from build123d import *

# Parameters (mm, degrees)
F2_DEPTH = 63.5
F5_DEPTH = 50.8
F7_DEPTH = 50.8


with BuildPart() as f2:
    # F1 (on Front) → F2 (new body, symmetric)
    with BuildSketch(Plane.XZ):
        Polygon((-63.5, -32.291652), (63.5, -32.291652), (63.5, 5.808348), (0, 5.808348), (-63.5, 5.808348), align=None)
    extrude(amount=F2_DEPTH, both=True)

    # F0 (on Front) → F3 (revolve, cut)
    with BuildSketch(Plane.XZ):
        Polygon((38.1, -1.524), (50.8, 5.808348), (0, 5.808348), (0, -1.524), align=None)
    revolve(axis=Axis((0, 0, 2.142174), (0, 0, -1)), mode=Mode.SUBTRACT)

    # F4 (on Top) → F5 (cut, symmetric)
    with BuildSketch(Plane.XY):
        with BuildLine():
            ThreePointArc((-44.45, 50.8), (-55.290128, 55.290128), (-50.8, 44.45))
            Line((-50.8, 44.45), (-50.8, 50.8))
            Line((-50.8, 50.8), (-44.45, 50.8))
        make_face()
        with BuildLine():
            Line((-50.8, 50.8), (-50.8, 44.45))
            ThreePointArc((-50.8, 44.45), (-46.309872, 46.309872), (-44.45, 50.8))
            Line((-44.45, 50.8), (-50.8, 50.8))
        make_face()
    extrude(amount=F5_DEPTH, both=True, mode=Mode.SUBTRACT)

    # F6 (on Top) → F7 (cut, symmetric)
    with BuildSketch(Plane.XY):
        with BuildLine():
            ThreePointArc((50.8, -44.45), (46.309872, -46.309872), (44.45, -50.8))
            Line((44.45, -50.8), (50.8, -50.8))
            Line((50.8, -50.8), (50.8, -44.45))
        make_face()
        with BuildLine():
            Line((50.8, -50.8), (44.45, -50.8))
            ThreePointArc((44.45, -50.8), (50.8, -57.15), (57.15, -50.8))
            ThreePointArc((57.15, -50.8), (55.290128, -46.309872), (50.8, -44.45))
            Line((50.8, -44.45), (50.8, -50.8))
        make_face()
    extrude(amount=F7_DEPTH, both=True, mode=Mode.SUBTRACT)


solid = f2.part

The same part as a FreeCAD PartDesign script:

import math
import FreeCAD as App
import Part
import Sketcher
Q = App.Units.Quantity

doc = App.newDocument("Part")
body = doc.addObject("PartDesign::Body", "Body")

# Sketch on XZ plane
sketch1 = doc.addObject("Sketcher::SketchObject", "Sketch")
body.addObject(sketch1)
sketch1.AttachmentSupport = (doc.XZ_Plane, [""])
sketch1.MapMode = "FlatFace"
sketch1.addGeometry(Part.LineSegment(App.Vector(-63.5, -32.291652, 0), App.Vector(63.5, -32.291652, 0)), False)
sketch1.addGeometry(Part.LineSegment(App.Vector(63.5, -32.291652, 0), App.Vector(63.5, 5.808348, 0)), False)
sketch1.addGeometry(Part.LineSegment(App.Vector(63.5, 5.808348, 0), App.Vector(-63.5, 5.808348, 0)), False)
sketch1.addGeometry(Part.LineSegment(App.Vector(-63.5, 5.808348, 0), App.Vector(-63.5, -32.291652, 0)), False)
sketch1.addConstraint(Sketcher.Constraint("Coincident", 0, 2, 1, 1))
sketch1.addConstraint(Sketcher.Constraint("Coincident", 1, 2, 2, 1))
sketch1.addConstraint(Sketcher.Constraint("Coincident", 2, 2, 3, 1))
sketch1.addConstraint(Sketcher.Constraint("Coincident", 3, 2, 0, 1))
sketch1.addConstraint(Sketcher.Constraint("Horizontal", 0))
sketch1.addConstraint(Sketcher.Constraint("Vertical", 1))
sketch1.addConstraint(Sketcher.Constraint("Horizontal", 2))
sketch1.addConstraint(Sketcher.Constraint("Vertical", 3))
sketch1.addConstraint(Sketcher.Constraint("DistanceX", 0, 1, 0, 2, Q("5 in")))
sketch1.addConstraint(Sketcher.Constraint("DistanceY", 1, 1, 1, 2, Q("1.5 in")))
sketch1.addConstraint(Sketcher.Constraint("DistanceX", -1, 1, 0, 2, Q("2.5 in")))
sketch1.addConstraint(Sketcher.Constraint("DistanceY", 0, 2, -1, 1, Q("32.291652 mm")))
pad1 = doc.addObject("PartDesign::Pad", "Pad")
body.addObject(pad1)
pad1.Profile = sketch1
pad1.Length = Q("5 in")
pad1.Midplane = True

# Sketch on XZ plane
sketch2 = doc.addObject("Sketcher::SketchObject", "Sketch001")
body.addObject(sketch2)
sketch2.AttachmentSupport = (doc.XZ_Plane, [""])
sketch2.MapMode = "FlatFace"
sketch2.addGeometry(Part.LineSegment(App.Vector(38.1, -1.524, 0), App.Vector(50.8, 5.808348, 0)), False)
sketch2.addGeometry(Part.LineSegment(App.Vector(50.8, 5.808348, 0), App.Vector(0, 5.808348, 0)), False)
sketch2.addGeometry(Part.LineSegment(App.Vector(0, 5.808348, 0), App.Vector(0, -1.524, 0)), False)
sketch2.addGeometry(Part.LineSegment(App.Vector(0, -1.524, 0), App.Vector(38.1, -1.524, 0)), False)
sketch2.addConstraint(Sketcher.Constraint("Coincident", 0, 2, 1, 1))
sketch2.addConstraint(Sketcher.Constraint("Coincident", 1, 2, 2, 1))
sketch2.addConstraint(Sketcher.Constraint("Coincident", 2, 2, 3, 1))
sketch2.addConstraint(Sketcher.Constraint("Coincident", 3, 2, 0, 1))
sketch2.addConstraint(Sketcher.Constraint("Horizontal", 1))
sketch2.addConstraint(Sketcher.Constraint("Vertical", 2))
sketch2.addConstraint(Sketcher.Constraint("Horizontal", 3))
sketch2.addConstraint(Sketcher.Constraint("PointOnObject", 1, 2, -2))
sketch2.addConstraint(Sketcher.Constraint("DistanceX", 1, 2, 1, 1, Q("2 in")))
sketch2.addConstraint(Sketcher.Constraint("DistanceX", 3, 1, 3, 2, Q("1.5 in")))
sketch2.addConstraint(Sketcher.Constraint("Angle", 0, Q("29.999999 deg")))
sketch2.addConstraint(Sketcher.Constraint("DistanceY", 2, 2, -1, 1, Q("0.06 in")))
groove = doc.addObject("PartDesign::Groove", "Groove")
body.addObject(groove)
groove.Profile = sketch2
groove.ReferenceAxis = (sketch2, ["V_Axis"])
groove.Angle = 360

# Sketch on XY plane
sketch3 = doc.addObject("Sketcher::SketchObject", "Sketch002")
body.addObject(sketch3)
sketch3.AttachmentSupport = (doc.XY_Plane, [""])
sketch3.MapMode = "FlatFace"
sketch3.addGeometry(Part.ArcOfCircle(Part.Circle(App.Vector(-50.8, 50.8, 0), App.Vector(0, 0, 1), 6.35), math.radians(0), math.radians(270)), False)
sketch3.addGeometry(Part.ArcOfCircle(Part.Circle(App.Vector(-50.8, 50.8, 0), App.Vector(0, 0, 1), 6.35), math.radians(-89.999998), math.radians(-0.000002)), False)
sketch3.addConstraint(Sketcher.Constraint("Tangent", 0, 1, 1, 2))
sketch3.addConstraint(Sketcher.Constraint("Coincident", 1, 1, 0, 2))
sketch3.addConstraint(Sketcher.Constraint("Horizontal", 1, 3, 0, 1))
sketch3.addConstraint(Sketcher.Constraint("Vertical", 0, 3, 1, 1))
sketch3.addConstraint(Sketcher.Constraint("Radius", 0, Q("0.25 in")))
sketch3.addConstraint(Sketcher.Constraint("DistanceX", 0, 3, -1, 1, Q("2 in")))
sketch3.addConstraint(Sketcher.Constraint("DistanceY", -1, 1, 0, 3, Q("2 in")))
pocket1 = doc.addObject("PartDesign::Pocket", "Pocket")
body.addObject(pocket1)
pocket1.Profile = sketch3
pocket1.Length = Q("4 in")
pocket1.Midplane = True

# Sketch on XY plane
sketch4 = doc.addObject("Sketcher::SketchObject", "Sketch003")
body.addObject(sketch4)
sketch4.AttachmentSupport = (doc.XY_Plane, [""])
sketch4.MapMode = "FlatFace"
sketch4.addGeometry(Part.ArcOfCircle(Part.Circle(App.Vector(50.8, -50.8, 0), App.Vector(0, 0, 1), 6.35), math.radians(90.000002), math.radians(179.999998)), False)
sketch4.addGeometry(Part.ArcOfCircle(Part.Circle(App.Vector(50.8, -50.8, 0), App.Vector(0, 0, 1), 6.35), math.radians(180), math.radians(360)), False)
sketch4.addGeometry(Part.ArcOfCircle(Part.Circle(App.Vector(50.8, -50.8, 0), App.Vector(0, 0, 1), 6.35), math.radians(0.000002), math.radians(89.999998)), False)
sketch4.addConstraint(Sketcher.Constraint("Tangent", 0, 2, 1, 1))
sketch4.addConstraint(Sketcher.Constraint("Tangent", 1, 2, 2, 1))
sketch4.addConstraint(Sketcher.Constraint("Tangent", 2, 2, 0, 1))
sketch4.addConstraint(Sketcher.Constraint("Horizontal", 2, 3, 0, 2))
sketch4.addConstraint(Sketcher.Constraint("Horizontal", 0, 2, 1, 2))
sketch4.addConstraint(Sketcher.Constraint("Vertical", 1, 3, 2, 2))
sketch4.addConstraint(Sketcher.Constraint("Radius", 0, Q("0.25 in")))
sketch4.addConstraint(Sketcher.Constraint("DistanceX", -1, 1, 0, 3, Q("2 in")))
sketch4.addConstraint(Sketcher.Constraint("DistanceY", 0, 3, -1, 1, Q("2 in")))
pocket2 = doc.addObject("PartDesign::Pocket", "Pocket001")
body.addObject(pocket2)
pocket2.Profile = sketch4
pocket2.Length = Q("4 in")
pocket2.Midplane = True

doc.recompute()
